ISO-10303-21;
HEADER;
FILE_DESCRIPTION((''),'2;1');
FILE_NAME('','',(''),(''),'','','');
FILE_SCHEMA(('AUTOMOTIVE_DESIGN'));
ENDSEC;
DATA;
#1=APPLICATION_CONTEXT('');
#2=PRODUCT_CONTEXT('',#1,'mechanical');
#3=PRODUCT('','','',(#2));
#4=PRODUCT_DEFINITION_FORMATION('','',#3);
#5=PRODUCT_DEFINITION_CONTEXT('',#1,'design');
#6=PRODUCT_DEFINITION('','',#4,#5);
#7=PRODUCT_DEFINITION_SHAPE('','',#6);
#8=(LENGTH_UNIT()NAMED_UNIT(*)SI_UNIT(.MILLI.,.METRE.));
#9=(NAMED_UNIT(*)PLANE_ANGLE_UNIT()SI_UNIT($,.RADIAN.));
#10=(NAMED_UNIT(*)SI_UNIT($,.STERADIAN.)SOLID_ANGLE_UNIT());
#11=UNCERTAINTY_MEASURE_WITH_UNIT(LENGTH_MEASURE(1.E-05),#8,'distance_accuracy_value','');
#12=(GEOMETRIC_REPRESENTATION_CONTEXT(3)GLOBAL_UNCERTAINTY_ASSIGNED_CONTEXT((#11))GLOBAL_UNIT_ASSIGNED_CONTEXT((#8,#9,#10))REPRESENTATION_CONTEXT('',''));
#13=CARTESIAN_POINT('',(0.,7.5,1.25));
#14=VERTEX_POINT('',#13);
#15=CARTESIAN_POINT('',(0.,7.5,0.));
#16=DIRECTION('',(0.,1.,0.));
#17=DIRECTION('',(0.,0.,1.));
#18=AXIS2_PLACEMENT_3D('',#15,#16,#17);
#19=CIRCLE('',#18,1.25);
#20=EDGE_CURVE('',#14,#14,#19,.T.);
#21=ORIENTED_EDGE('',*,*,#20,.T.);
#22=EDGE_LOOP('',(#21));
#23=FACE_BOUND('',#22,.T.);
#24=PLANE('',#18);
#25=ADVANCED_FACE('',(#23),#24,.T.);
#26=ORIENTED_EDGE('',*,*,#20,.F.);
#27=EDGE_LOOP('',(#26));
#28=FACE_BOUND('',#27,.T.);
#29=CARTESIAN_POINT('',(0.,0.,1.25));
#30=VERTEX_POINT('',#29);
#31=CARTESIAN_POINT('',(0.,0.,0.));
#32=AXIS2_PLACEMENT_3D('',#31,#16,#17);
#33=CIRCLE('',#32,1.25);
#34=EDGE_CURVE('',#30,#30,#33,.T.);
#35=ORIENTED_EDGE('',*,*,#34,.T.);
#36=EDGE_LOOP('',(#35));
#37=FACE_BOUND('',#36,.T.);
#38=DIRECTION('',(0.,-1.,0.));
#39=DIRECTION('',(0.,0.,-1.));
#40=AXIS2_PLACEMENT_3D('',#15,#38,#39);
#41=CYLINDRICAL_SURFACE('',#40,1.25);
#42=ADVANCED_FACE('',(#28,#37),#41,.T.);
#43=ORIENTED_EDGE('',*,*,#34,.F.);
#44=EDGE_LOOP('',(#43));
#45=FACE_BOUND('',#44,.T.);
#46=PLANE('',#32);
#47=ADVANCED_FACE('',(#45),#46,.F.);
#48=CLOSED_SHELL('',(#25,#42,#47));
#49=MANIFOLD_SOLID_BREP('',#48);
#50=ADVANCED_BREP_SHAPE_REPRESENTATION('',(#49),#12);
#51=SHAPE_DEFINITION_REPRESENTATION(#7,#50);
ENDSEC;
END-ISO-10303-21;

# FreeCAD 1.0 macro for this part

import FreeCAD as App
import Part
import Sketcher

V = App.Vector
Q = App.Units.Quantity

doc = App.newDocument("Part")
body = doc.addObject("PartDesign::Body", "Body")

sketch1 = body.newObject("Sketcher::SketchObject", "Sketch")
sketch1.AttachmentSupport = (doc.getObject("XZ_Plane"), [""])
sketch1.MapMode = "FlatFace"
sketch1.addGeometry(Part.Circle(V(0, 0, 0), V(0, 0, 1), 1.2), False)
sketch1.addConstraint([
    Sketcher.Constraint("Coincident", 0, 3, -1, 1),
    Sketcher.Constraint("Diameter", 0, Q("2.5 mm")),
])
pad1 = body.newObject("PartDesign::Pad", "Pad")
pad1.Profile = sketch1
pad1.Length = 7.5
pad1.Reversed = True

doc.recompute()
